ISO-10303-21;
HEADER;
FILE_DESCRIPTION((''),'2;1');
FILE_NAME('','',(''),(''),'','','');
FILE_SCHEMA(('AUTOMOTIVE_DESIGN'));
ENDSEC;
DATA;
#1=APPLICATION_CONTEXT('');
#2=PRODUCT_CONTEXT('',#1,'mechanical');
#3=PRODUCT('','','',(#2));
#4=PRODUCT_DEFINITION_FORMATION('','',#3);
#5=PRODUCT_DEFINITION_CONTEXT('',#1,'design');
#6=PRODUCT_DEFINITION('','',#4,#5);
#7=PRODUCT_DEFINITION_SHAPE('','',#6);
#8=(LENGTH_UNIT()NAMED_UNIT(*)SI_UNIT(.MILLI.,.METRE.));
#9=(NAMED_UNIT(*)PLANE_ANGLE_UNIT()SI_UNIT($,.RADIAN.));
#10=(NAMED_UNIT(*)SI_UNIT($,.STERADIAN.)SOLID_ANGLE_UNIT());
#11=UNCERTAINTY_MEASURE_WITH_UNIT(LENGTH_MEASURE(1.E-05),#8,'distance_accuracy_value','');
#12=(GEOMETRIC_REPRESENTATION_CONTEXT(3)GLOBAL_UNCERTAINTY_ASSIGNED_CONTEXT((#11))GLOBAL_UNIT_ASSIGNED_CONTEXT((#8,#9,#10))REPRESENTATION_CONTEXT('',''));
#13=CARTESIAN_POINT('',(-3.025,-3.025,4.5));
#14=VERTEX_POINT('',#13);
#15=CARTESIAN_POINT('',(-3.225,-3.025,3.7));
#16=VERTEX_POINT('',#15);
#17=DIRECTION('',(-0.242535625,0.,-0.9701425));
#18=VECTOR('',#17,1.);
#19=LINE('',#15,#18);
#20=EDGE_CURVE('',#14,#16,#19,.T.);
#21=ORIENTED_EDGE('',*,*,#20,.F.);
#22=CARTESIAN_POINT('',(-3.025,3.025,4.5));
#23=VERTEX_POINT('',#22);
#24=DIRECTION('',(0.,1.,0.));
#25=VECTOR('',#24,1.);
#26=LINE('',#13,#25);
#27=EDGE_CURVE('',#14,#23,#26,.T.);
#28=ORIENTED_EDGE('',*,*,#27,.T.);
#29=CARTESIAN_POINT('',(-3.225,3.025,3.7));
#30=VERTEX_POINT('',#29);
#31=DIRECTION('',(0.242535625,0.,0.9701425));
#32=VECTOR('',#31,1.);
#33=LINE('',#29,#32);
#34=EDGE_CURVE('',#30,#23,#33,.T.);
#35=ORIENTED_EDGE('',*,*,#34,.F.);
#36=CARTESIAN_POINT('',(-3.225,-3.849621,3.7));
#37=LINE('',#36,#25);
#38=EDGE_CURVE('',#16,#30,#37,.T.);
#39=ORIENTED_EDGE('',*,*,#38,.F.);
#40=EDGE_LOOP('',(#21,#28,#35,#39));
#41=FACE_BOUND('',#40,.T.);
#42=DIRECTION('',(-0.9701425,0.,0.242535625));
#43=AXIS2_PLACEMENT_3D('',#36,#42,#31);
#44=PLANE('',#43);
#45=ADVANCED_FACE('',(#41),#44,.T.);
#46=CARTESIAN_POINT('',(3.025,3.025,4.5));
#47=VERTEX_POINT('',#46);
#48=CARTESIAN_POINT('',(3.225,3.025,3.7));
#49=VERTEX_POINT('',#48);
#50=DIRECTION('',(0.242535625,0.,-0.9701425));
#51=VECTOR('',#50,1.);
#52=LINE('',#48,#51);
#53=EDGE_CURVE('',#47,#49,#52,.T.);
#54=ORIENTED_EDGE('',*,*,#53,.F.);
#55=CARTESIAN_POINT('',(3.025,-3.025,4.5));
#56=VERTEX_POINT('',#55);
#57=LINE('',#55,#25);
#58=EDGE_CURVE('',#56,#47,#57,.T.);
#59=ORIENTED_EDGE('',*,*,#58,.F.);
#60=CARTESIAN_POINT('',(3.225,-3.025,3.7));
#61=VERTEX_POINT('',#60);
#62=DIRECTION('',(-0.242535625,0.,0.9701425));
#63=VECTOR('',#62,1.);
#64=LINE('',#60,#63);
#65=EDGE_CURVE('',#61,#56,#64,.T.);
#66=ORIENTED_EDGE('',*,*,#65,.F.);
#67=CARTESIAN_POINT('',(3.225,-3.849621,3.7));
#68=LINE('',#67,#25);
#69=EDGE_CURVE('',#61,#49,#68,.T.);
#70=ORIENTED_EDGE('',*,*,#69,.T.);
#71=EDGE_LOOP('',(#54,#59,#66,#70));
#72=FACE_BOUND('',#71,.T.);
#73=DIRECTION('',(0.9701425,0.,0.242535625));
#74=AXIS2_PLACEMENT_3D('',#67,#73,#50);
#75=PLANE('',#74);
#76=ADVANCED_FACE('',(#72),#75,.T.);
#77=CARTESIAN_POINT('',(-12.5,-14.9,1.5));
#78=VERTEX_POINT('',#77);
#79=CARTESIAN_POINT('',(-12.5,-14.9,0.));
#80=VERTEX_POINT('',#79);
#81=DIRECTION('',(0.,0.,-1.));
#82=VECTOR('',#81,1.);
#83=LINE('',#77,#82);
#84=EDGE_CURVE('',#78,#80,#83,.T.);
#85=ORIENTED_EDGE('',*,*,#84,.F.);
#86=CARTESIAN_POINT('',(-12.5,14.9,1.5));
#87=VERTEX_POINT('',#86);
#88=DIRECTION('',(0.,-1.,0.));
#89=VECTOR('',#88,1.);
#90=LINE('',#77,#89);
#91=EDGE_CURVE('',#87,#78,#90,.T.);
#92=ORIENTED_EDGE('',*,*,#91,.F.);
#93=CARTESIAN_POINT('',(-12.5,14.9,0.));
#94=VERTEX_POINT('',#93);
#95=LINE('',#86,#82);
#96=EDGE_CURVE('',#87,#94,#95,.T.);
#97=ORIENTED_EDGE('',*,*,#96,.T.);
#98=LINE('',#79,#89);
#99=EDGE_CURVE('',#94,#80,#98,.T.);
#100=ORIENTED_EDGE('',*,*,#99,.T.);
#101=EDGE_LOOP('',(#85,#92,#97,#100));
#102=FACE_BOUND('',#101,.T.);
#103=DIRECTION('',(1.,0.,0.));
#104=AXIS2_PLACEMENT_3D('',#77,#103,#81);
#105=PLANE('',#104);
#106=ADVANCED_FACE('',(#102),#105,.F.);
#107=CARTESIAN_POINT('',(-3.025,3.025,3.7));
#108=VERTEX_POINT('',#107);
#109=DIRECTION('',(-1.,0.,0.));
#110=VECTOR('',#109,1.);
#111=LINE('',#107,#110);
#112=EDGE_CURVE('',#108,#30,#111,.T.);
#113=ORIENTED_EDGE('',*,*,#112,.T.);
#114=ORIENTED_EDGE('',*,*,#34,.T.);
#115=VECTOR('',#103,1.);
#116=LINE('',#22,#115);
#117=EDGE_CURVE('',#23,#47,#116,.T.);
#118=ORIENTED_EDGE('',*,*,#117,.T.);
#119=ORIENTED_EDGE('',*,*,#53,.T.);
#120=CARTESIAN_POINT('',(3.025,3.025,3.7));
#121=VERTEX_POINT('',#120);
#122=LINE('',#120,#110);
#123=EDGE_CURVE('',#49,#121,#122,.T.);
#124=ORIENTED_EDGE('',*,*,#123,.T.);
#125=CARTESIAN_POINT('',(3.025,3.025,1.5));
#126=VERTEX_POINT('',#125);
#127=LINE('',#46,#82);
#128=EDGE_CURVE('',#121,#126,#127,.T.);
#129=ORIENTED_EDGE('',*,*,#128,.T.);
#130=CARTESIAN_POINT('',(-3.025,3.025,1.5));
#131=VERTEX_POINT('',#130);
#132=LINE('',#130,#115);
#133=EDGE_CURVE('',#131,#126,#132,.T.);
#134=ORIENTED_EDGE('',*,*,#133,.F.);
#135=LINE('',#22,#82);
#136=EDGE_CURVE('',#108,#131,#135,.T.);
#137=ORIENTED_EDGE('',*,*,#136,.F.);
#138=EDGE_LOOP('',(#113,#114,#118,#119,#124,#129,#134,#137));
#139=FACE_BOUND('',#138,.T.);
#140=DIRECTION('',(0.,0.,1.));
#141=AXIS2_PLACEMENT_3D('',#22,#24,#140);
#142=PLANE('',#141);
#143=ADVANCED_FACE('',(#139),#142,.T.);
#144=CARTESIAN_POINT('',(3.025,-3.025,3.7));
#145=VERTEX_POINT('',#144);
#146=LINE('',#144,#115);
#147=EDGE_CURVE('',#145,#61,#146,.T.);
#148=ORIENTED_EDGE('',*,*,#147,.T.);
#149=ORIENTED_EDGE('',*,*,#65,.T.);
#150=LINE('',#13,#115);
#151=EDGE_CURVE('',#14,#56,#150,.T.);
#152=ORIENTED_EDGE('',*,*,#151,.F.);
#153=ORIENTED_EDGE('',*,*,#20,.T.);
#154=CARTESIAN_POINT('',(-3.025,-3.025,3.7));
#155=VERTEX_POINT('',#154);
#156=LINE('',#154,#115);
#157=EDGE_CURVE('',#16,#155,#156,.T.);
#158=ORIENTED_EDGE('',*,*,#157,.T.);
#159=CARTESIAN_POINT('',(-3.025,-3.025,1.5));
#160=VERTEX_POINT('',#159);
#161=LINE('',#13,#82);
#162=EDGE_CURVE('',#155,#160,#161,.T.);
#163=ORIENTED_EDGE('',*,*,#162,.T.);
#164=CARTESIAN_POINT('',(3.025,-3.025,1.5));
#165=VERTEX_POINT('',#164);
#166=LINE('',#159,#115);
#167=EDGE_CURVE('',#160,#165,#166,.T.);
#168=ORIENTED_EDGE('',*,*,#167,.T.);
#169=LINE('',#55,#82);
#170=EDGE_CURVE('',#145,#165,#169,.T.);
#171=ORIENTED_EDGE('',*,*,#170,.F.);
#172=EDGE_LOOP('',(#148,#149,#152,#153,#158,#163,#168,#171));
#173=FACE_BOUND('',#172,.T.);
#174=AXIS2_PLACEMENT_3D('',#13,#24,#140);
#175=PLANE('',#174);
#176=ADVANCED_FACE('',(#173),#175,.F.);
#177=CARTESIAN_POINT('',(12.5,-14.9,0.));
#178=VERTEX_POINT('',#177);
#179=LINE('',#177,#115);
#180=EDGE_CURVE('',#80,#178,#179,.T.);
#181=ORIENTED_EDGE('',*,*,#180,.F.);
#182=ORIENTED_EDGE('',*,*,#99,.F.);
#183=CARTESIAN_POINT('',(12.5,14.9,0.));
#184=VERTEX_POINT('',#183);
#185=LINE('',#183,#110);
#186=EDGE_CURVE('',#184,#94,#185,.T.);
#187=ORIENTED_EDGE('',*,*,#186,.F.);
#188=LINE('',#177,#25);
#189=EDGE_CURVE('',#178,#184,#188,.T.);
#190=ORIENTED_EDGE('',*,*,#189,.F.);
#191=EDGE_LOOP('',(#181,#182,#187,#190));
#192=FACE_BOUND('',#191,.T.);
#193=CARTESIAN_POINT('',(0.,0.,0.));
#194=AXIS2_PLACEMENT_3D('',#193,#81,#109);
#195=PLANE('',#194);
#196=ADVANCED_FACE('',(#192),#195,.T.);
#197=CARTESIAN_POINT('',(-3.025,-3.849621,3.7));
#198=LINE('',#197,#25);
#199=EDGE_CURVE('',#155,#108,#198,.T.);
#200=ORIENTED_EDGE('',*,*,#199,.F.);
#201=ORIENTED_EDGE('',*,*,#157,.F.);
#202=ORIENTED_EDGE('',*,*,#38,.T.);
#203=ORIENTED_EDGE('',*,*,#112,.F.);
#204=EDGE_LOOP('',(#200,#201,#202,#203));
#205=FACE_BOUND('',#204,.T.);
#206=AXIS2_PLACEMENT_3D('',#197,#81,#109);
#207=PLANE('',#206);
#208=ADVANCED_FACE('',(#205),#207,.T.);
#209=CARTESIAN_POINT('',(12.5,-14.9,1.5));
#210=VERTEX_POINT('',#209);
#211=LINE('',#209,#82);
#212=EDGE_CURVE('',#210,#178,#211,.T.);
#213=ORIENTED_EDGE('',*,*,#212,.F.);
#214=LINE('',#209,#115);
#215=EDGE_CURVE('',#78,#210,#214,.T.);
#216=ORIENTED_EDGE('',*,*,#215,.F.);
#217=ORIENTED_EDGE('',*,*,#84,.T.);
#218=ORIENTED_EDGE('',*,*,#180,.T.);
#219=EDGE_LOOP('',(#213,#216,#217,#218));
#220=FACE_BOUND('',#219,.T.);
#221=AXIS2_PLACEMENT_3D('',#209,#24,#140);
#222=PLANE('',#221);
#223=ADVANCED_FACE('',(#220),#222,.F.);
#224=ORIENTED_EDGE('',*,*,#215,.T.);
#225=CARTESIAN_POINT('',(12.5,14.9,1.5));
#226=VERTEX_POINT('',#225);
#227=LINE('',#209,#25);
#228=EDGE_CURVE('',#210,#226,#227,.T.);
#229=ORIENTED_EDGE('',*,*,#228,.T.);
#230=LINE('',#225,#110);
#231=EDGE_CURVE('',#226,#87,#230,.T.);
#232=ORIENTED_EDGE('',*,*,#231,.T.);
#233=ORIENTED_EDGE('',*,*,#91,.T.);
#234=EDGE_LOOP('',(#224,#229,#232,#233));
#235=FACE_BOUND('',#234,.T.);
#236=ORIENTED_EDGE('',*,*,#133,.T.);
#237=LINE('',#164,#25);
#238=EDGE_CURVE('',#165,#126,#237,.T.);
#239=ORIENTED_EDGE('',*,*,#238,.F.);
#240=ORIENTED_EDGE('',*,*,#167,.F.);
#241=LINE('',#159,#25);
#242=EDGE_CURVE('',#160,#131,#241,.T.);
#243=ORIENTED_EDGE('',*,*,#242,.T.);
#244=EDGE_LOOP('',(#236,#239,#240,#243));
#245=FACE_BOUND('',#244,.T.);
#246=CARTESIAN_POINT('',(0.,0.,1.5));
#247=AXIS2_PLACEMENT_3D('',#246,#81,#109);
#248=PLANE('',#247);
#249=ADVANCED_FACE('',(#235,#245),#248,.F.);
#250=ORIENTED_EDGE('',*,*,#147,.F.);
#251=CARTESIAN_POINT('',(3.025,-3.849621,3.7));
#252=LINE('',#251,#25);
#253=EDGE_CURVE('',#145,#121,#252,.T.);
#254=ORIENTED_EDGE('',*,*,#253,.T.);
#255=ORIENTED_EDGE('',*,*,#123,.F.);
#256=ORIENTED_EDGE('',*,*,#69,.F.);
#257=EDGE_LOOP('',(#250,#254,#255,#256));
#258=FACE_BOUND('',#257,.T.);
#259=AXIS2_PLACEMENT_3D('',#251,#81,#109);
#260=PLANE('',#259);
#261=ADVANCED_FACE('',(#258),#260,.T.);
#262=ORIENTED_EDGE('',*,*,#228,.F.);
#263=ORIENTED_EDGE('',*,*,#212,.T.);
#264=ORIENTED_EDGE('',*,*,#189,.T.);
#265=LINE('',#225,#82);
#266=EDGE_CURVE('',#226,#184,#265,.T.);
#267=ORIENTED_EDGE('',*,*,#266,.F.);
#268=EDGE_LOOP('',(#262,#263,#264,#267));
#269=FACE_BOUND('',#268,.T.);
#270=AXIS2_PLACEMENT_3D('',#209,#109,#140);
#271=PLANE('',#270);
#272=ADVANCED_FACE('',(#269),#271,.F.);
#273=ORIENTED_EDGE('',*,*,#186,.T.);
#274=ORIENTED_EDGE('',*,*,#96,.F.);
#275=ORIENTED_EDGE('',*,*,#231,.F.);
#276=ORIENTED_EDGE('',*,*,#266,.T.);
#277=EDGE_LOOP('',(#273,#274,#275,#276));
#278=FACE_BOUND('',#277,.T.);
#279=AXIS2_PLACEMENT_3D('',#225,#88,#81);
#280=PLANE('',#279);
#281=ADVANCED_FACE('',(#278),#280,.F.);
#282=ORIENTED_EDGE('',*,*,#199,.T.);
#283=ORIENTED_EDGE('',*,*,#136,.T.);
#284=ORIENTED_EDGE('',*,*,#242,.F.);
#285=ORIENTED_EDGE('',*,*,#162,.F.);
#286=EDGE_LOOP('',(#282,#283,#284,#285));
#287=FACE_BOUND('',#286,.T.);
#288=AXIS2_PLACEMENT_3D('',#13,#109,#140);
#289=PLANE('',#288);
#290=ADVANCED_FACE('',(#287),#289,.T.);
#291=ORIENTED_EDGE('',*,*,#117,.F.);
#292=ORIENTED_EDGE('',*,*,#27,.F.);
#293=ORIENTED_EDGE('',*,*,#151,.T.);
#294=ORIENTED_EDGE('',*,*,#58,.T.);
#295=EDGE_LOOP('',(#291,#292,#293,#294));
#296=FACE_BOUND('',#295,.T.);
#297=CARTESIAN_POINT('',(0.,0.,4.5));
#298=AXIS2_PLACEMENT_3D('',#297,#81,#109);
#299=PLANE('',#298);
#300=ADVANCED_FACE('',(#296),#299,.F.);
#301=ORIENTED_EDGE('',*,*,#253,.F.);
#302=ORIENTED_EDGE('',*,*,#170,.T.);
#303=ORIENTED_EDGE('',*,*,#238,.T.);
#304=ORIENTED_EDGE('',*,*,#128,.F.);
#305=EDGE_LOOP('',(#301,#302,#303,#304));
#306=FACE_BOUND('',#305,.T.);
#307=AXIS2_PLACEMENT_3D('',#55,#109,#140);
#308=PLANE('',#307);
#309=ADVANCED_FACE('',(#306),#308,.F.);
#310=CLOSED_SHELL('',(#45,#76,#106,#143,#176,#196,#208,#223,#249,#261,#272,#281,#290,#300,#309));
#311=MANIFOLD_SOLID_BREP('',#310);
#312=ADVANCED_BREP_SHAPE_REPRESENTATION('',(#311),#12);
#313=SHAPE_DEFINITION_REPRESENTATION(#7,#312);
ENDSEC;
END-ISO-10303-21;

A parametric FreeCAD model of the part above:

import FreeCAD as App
import Part
import Sketcher

V = App.Vector

doc = App.newDocument("Part")
body = doc.addObject("PartDesign::Body", "Body")

sketch1 = body.newObject("Sketcher::SketchObject", "Sketch")
sketch1.AttachmentSupport = (doc.getObject("XY_Plane"), [""])
sketch1.MapMode = "FlatFace"
sketch1.addGeometry([
    Part.LineSegment(V(-12, -15, 0), V(12, -15, 0)),
    Part.LineSegment(V(12, -15, 0), V(12, 15, 0)),
    Part.LineSegment(V(12, 15, 0), V(-12, 15, 0)),
    Part.LineSegment(V(-12, 15, 0), V(-12, -15, 0)),
], False)
sketch1.addConstraint([
    Sketcher.Constraint("Coincident", 0, 2, 1, 1),
    Sketcher.Constraint("Coincident", 1, 2, 2, 1),
    Sketcher.Constraint("Coincident", 2, 2, 3, 1),
    Sketcher.Constraint("Coincident", 3, 2, 0, 1),
    Sketcher.Constraint("Horizontal", 0),
    Sketcher.Constraint("Vertical", 1),
    Sketcher.Constraint("Horizontal", 2),
    Sketcher.Constraint("Vertical", 3),
    Sketcher.Constraint("Symmetric", 0, 2, 2, 2, -1, 1),
    Sketcher.Constraint("DistanceX", 0, 1, 0, 2, 25.0),
    Sketcher.Constraint("DistanceY", 1, 1, 1, 2, 29.8),
])
pad1 = body.newObject("PartDesign::Pad", "Pad")
pad1.Profile = sketch1
pad1.Length = 1.5

sketch2 = body.newObject("Sketcher::SketchObject", "Sketch001")
sketch2.AttachmentSupport = (doc.getObject("XY_Plane"), [""])
sketch2.MapMode = "FlatFace"
sketch2.AttachmentOffset = App.Placement(V(0, 0, 1.5), App.Rotation())
sketch2.addGeometry([
    Part.LineSegment(V(-3, 3, 0), V(-3, -3, 0)),
    Part.LineSegment(V(-3, -3, 0), V(3, -3, 0)),
    Part.LineSegment(V(3, -3, 0), V(3, 3, 0)),
    Part.LineSegment(V(3, 3, 0), V(-3, 3, 0)),
], False)
sketch2.addConstraint([
    Sketcher.Constraint("Coincident", 0, 2, 1, 1),
    Sketcher.Constraint("Coincident", 1, 2, 2, 1),
    Sketcher.Constraint("Coincident", 2, 2, 3, 1),
    Sketcher.Constraint("Coincident", 3, 2, 0, 1),
    Sketcher.Constraint("Vertical", 0),
    Sketcher.Constraint("Horizontal", 1),
    Sketcher.Constraint("Vertical", 2),
    Sketcher.Constraint("Horizontal", 3),
    Sketcher.Constraint("Symmetric", 0, 2, 2, 2, -1, 1),
    Sketcher.Constraint("Equal", 3, 0),
    Sketcher.Constraint("DistanceX", 1, 1, 1, 2, 6.05),
])
pad2 = body.newObject("PartDesign::Pad", "Pad001")
pad2.Profile = sketch2
pad2.Length = 3

sketch3 = body.newObject("Sketcher::SketchObject", "Sketch002")
sketch3.AttachmentSupport = (doc.getObject("XZ_Plane"), [""])
sketch3.MapMode = "FlatFace"
sketch3.AttachmentOffset = App.Placement(V(0, 0, -3.025), App.Rotation())
sketch3.addGeometry([
    Part.LineSegment(V(3.02, 3.7, 0), V(3.02, 4.5, 0)),
    Part.LineSegment(V(3.02, 4.5, 0), V(3.23, 3.7, 0)),
    Part.LineSegment(V(3.23, 3.7, 0), V(3.02, 3.7, 0)),
    Part.LineSegment(V(-3.23, 3.7, 0), V(-3.02, 4.5, 0)),
    Part.LineSegment(V(-3.02, 4.5, 0), V(-3.02, 3.7, 0)),
    Part.LineSegment(V(-3.02, 3.7, 0), V(-3.23, 3.7, 0)),
], False)
sketch3.addConstraint([
    Sketcher.Constraint("Coincident", 0, 2, 1, 1),
    Sketcher.Constraint("Coincident", 1, 2, 2, 1),
    Sketcher.Constraint("Coincident", 2, 2, 0, 1),
    Sketcher.Constraint("Coincident", 3, 2, 4, 1),
    Sketcher.Constraint("Coincident", 4, 2, 5, 1),
    Sketcher.Constraint("Coincident", 5, 2, 3, 1),
    Sketcher.Constraint("Vertical", 0),
    Sketcher.Constraint("Horizontal", 2),
    Sketcher.Constraint("Vertical", 4),
    Sketcher.Constraint("Horizontal", 5),
    Sketcher.Constraint("Symmetric", 0, 2, 3, 2, -2),
    Sketcher.Constraint("Symmetric", 1, 2, 5, 2, -2),
    Sketcher.Constraint("DistanceX", 2, 2, 2, 1, 0.2),
    Sketcher.Constraint("DistanceY", 0, 1, 0, 2, 0.8),
    Sketcher.Constraint("DistanceY", -1, 1, 0, 2, 4.5),
    Sketcher.Constraint("DistanceX", 3, 2, 0, 2, 6.05),
])
pad3 = body.newObject("PartDesign::Pad", "Pad002")
pad3.Profile = sketch3
pad3.Length = 6.05

doc.recompute()
